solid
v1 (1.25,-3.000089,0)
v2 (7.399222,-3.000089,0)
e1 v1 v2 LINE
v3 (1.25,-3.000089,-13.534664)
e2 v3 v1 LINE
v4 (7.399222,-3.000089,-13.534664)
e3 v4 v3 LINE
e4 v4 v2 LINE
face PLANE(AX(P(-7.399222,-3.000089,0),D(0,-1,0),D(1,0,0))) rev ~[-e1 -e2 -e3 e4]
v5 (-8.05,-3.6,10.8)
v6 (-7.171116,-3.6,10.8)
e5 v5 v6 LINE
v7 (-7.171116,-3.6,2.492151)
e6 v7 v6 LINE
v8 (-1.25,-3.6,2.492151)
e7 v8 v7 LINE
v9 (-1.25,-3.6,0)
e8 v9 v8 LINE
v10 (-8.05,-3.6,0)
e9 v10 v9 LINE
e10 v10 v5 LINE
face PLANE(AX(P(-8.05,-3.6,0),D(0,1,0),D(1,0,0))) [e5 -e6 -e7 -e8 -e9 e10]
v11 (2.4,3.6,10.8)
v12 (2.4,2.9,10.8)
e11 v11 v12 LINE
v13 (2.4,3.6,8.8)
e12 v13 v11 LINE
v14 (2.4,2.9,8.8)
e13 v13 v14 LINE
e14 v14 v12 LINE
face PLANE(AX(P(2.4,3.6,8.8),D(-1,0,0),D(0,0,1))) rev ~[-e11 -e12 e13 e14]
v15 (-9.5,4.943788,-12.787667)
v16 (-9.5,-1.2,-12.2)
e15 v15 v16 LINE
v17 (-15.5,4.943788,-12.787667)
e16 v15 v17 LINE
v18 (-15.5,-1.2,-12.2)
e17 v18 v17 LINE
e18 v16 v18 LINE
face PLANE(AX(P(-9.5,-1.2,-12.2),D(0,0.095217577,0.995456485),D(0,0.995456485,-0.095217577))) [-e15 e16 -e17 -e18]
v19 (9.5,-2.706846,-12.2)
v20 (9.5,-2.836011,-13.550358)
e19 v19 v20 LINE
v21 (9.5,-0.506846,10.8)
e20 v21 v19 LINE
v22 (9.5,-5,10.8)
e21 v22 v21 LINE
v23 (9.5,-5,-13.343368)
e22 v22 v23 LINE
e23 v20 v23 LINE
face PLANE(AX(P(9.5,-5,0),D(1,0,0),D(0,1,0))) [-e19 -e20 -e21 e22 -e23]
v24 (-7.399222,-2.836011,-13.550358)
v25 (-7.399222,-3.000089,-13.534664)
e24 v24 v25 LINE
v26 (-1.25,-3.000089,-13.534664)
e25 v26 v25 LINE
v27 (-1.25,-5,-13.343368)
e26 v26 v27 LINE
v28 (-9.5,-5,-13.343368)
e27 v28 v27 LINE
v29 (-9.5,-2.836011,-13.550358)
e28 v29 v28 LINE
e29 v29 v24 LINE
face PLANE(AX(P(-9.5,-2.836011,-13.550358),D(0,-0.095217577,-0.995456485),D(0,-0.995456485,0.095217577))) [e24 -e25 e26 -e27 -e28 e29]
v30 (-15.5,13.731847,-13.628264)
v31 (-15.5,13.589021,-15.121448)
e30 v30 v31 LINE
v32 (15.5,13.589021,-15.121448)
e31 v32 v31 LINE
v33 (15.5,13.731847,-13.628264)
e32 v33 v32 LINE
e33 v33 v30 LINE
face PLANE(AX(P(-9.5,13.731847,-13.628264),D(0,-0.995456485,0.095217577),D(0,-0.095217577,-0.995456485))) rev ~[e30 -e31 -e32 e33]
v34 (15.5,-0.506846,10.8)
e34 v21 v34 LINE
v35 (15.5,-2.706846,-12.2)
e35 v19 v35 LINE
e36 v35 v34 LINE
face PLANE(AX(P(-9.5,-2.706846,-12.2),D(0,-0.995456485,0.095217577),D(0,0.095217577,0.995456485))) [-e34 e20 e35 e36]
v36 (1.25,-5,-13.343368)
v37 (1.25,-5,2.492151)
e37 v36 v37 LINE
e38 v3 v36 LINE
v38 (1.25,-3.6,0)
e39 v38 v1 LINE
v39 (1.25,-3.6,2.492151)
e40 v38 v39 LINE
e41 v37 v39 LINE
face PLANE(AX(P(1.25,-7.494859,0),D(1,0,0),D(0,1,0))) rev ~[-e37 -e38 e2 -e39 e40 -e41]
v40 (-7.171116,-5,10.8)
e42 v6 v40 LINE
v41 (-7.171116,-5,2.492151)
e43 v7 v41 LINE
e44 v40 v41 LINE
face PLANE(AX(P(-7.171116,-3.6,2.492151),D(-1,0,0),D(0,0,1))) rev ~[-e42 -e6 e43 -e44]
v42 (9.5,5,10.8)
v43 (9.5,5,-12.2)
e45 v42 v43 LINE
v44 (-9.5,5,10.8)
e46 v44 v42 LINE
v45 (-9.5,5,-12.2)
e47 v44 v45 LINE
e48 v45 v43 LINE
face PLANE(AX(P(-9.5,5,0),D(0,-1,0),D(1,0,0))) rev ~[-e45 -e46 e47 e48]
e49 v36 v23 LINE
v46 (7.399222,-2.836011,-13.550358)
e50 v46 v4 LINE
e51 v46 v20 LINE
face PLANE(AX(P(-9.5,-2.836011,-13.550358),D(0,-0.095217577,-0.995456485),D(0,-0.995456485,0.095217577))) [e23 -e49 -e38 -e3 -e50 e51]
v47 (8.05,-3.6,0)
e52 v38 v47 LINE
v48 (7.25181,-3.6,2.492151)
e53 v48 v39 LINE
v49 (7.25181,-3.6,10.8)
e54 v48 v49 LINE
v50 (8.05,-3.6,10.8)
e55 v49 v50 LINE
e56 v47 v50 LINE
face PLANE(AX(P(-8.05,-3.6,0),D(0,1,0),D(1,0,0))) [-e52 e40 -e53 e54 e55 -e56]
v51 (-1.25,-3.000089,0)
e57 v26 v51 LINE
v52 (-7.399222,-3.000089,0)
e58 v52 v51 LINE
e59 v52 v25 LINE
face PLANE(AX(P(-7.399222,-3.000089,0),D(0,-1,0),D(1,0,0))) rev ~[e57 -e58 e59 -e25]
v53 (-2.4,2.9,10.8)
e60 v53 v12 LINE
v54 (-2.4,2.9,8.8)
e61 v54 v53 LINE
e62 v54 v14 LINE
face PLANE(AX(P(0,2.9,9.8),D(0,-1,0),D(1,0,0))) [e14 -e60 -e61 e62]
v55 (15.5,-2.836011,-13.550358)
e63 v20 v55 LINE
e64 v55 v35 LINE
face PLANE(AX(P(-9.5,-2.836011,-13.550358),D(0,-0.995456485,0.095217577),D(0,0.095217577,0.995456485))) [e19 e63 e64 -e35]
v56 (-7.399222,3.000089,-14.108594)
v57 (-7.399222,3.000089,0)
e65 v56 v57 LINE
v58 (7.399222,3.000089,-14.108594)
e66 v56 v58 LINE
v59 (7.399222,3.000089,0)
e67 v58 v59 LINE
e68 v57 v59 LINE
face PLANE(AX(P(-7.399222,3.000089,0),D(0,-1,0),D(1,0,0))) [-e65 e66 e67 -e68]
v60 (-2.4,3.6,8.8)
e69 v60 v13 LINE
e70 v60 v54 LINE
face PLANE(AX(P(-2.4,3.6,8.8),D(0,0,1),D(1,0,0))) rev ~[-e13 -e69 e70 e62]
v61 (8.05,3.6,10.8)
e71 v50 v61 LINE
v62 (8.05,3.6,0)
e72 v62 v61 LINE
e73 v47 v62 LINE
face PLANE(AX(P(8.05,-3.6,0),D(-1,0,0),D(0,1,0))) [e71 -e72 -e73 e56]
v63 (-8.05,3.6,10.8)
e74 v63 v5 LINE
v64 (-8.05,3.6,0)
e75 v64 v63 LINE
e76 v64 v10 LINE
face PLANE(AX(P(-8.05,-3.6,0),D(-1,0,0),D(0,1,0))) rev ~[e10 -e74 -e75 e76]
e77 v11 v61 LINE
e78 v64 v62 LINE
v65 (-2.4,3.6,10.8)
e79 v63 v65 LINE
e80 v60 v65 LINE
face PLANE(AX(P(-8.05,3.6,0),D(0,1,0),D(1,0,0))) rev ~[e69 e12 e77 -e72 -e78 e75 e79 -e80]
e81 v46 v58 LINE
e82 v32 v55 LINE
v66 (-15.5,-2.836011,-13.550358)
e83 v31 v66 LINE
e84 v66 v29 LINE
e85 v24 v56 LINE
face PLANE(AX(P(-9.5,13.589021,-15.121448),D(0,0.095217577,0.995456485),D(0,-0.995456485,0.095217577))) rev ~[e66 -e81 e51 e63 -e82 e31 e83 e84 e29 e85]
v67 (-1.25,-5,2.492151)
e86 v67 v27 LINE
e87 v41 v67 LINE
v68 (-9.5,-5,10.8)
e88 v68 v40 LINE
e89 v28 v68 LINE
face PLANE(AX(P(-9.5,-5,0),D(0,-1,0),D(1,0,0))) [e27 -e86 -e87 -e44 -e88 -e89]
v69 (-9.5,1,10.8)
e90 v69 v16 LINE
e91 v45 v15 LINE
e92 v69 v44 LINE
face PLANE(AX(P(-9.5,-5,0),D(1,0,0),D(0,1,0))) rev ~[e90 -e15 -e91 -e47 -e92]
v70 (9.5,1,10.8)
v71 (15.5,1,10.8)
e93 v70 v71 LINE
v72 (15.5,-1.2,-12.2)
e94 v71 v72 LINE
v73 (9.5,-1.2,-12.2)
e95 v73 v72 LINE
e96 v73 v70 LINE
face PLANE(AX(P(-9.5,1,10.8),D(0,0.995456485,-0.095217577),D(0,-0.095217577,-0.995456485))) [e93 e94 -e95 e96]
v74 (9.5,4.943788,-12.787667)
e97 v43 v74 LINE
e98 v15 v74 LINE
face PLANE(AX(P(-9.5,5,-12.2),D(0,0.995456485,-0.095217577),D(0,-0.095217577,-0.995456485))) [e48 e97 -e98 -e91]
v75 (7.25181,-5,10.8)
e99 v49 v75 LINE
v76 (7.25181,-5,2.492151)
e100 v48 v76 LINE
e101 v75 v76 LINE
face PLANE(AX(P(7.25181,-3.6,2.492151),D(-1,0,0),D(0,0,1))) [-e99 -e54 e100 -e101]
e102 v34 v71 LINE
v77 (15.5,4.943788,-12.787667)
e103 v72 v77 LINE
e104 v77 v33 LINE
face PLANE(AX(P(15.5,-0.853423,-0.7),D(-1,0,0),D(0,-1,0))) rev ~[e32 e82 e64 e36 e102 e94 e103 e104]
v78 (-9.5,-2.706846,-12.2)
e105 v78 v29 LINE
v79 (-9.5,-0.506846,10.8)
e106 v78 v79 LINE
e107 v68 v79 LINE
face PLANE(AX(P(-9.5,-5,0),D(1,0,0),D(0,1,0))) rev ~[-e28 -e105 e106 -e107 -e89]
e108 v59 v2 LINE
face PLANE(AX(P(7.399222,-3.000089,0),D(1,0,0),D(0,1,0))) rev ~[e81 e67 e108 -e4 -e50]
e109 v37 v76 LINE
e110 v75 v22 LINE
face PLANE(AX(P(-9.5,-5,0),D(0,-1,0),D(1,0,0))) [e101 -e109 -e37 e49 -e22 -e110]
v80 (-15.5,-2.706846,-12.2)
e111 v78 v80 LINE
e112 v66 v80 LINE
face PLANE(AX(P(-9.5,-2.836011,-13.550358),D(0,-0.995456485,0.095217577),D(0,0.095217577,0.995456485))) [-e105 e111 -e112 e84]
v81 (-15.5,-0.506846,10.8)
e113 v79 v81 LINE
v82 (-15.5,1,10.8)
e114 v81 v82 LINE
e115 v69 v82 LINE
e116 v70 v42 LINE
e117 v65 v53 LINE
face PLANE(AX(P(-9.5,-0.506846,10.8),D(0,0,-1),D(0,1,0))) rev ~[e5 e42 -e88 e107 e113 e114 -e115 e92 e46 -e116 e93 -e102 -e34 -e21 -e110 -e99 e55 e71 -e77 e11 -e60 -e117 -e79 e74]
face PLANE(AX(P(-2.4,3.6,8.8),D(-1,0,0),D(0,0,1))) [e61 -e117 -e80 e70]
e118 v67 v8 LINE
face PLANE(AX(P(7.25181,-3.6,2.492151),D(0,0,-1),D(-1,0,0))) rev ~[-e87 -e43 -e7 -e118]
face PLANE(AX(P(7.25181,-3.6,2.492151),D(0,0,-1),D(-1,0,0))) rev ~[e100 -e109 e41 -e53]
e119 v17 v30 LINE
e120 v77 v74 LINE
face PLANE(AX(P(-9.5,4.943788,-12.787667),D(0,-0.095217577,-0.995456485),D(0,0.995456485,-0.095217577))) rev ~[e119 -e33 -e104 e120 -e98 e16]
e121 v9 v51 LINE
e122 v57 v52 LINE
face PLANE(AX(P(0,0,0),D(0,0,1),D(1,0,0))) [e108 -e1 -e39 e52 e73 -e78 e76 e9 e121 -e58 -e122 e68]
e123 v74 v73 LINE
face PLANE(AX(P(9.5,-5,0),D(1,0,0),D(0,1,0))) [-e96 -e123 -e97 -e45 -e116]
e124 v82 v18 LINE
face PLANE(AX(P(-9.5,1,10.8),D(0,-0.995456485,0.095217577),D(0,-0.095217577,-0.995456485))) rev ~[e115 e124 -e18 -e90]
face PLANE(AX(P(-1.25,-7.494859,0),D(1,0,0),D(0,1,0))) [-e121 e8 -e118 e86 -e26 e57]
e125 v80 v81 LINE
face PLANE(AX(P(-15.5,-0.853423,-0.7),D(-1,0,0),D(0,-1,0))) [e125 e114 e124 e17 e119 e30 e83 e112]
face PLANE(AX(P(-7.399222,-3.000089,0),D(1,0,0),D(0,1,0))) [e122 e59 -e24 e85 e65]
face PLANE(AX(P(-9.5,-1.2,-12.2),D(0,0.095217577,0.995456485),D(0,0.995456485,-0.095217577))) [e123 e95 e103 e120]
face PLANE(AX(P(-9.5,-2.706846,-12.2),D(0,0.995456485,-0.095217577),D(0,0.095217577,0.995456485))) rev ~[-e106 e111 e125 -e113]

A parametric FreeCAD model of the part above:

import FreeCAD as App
import Part
import Sketcher

doc = App.newDocument("Part")
body = doc.addObject("PartDesign::Body", "Body")

sketch1 = body.newObject("Sketcher::SketchObject", "Sketch")
sketch1.AttachmentSupport = (doc.getObject("XY_Plane"), [""])
sketch1.MapMode = "FlatFace"
sketch1.addGeometry([
    Part.LineSegment(App.Vector(-10, 5, 0), App.Vector(-10, -5, 0)),
    Part.LineSegment(App.Vector(-10, -5, 0), App.Vector(10, -5, 0)),
    Part.LineSegment(App.Vector(10, -5, 0), App.Vector(10, 5, 0)),
    Part.LineSegment(App.Vector(10, 5, 0), App.Vector(-10, 5, 0)),
    Part.LineSegment(App.Vector(8, -4, 0), App.Vector(-8, -4, 0)),
    Part.LineSegment(App.Vector(-8, -4, 0), App.Vector(-8, 4, 0)),
    Part.LineSegment(App.Vector(-8, 4, 0), App.Vector(8, 4, 0)),
    Part.LineSegment(App.Vector(8, 4, 0), App.Vector(8, -4, 0)),
], False)
sketch1.addConstraint([
    Sketcher.Constraint("Coincident", 0, 2, 1, 1),
    Sketcher.Constraint("Coincident", 1, 2, 2, 1),
    Sketcher.Constraint("Coincident", 2, 2, 3, 1),
    Sketcher.Constraint("Coincident", 3, 2, 0, 1),
    Sketcher.Constraint("Coincident", 4, 2, 5, 1),
    Sketcher.Constraint("Coincident", 5, 2, 6, 1),
    Sketcher.Constraint("Coincident", 6, 2, 7, 1),
    Sketcher.Constraint("Coincident", 7, 2, 4, 1),
    Sketcher.Constraint("Vertical", 0),
    Sketcher.Constraint("Horizontal", 1),
    Sketcher.Constraint("Vertical", 2),
    Sketcher.Constraint("Horizontal", 3),
    Sketcher.Constraint("Horizontal", 4),
    Sketcher.Constraint("Vertical", 5),
    Sketcher.Constraint("Horizontal", 6),
    Sketcher.Constraint("Vertical", 7),
    Sketcher.Constraint("Symmetric", 0, 2, 2, 2, -1, 1),
    Sketcher.Constraint("Symmetric", 4, 2, 6, 2, -1, 1),
    Sketcher.Constraint("DistanceX", 1, 1, 1, 2, 19.0),
    Sketcher.Constraint("DistanceY", 0, 2, 0, 1, 10.0),
    Sketcher.Constraint("DistanceX", 4, 2, 4, 1, 16.1),
    Sketcher.Constraint("DistanceY", 5, 1, 5, 2, 7.2),
])
pad1 = body.newObject("PartDesign::Pad", "Pad")
pad1.Profile = sketch1
pad1.Length = 10.8

sketch2 = body.newObject("Sketcher::SketchObject", "Sketch001")
sketch2.AttachmentSupport = (doc.getObject("XY_Plane"), [""])
sketch2.MapMode = "FlatFace"
sketch2.addGeometry([
    Part.LineSegment(App.Vector(-10, 5, 0), App.Vector(-10, -5, 0)),
    Part.LineSegment(App.Vector(-10, -5, 0), App.Vector(10, -5, 0)),
    Part.LineSegment(App.Vector(10, -5, 0), App.Vector(10, 5, 0)),
    Part.LineSegment(App.Vector(10, 5, 0), App.Vector(-10, 5, 0)),
    Part.LineSegment(App.Vector(7, -3, 0), App.Vector(-7, -3, 0)),
    Part.LineSegment(App.Vector(-7, -3, 0), App.Vector(-7, 3, 0)),
    Part.LineSegment(App.Vector(-7, 3, 0), App.Vector(7, 3, 0)),
    Part.LineSegment(App.Vector(7, 3, 0), App.Vector(7, -3, 0)),
], False)
sketch2.addConstraint([
    Sketcher.Constraint("Coincident", 0, 2, 1, 1),
    Sketcher.Constraint("Coincident", 1, 2, 2, 1),
    Sketcher.Constraint("Coincident", 2, 2, 3, 1),
    Sketcher.Constraint("Coincident", 3, 2, 0, 1),
    Sketcher.Constraint("Coincident", 4, 2, 5, 1),
    Sketcher.Constraint("Coincident", 5, 2, 6, 1),
    Sketcher.Constraint("Coincident", 6, 2, 7, 1),
    Sketcher.Constraint("Coincident", 7, 2, 4, 1),
    Sketcher.Constraint("Vertical", 0),
    Sketcher.Constraint("Horizontal", 1),
    Sketcher.Constraint("Vertical", 2),
    Sketcher.Constraint("Horizontal", 3),
    Sketcher.Constraint("Horizontal", 4),
    Sketcher.Constraint("Vertical", 5),
    Sketcher.Constraint("Horizontal", 6),
    Sketcher.Constraint("Vertical", 7),
    Sketcher.Constraint("Symmetric", 0, 2, 2, 2, -1, 1),
    Sketcher.Constraint("Symmetric", 4, 2, 6, 2, -1, 1),
    Sketcher.Constraint("DistanceX", 1, 1, 1, 2, 19.0),
    Sketcher.Constraint("DistanceY", 0, 2, 0, 1, 10.0),
    Sketcher.Constraint("DistanceX", 4, 2, 4, 1, 14.798444),
    Sketcher.Constraint("DistanceY", 5, 1, 5, 2, 6.000178),
])
pad2 = body.newObject("PartDesign::Pad", "Pad001")
pad2.Profile = sketch2
pad2.Length = 12.2
pad2.Reversed = True

sketch3 = body.newObject("Sketcher::SketchObject", "Sketch002")
sketch3.AttachmentSupport = (doc.getObject("YZ_Plane"), [""])
sketch3.MapMode = "FlatFace"
sketch3.AttachmentOffset = App.Placement(App.Vector(0, 0, -9.5), App.Rotation())
sketch3.addGeometry([
    Part.LineSegment(App.Vector(1, 10.8, 0), App.Vector(-1.2, -12.2, 0)),
    Part.LineSegment(App.Vector(-1.2, -12.2, 0), App.Vector(4.9, -12.8, 0)),
    Part.LineSegment(App.Vector(4.9, -12.8, 0), App.Vector(13.7, -13.6, 0)),
    Part.LineSegment(App.Vector(13.7, -13.6, 0), App.Vector(13.6, -15.1, 0)),
    Part.LineSegment(App.Vector(13.6, -15.1, 0), App.Vector(-2.8, -13.6, 0)),
    Part.LineSegment(App.Vector(-2.8, -13.6, 0), App.Vector(-2.7, -12.2, 0)),
    Part.LineSegment(App.Vector(-2.7, -12.2, 0), App.Vector(-0.5, 10.8, 0)),
    Part.LineSegment(App.Vector(-0.5, 10.8, 0), App.Vector(1, 10.8, 0)),
], False)
sketch3.addConstraint([
    Sketcher.Constraint("Coincident", 0, 2, 1, 1),
    Sketcher.Constraint("Coincident", 1, 2, 2, 1),
    Sketcher.Constraint("Coincident", 2, 2, 3, 1),
    Sketcher.Constraint("Coincident", 3, 2, 4, 1),
    Sketcher.Constraint("Coincident", 4, 2, 5, 1),
    Sketcher.Constraint("Coincident", 5, 2, 6, 1),
    Sketcher.Constraint("Coincident", 6, 2, 7, 1),
    Sketcher.Constraint("Coincident", 7, 2, 0, 1),
    Sketcher.Constraint("Horizontal", 7),
    Sketcher.Constraint("Perpendicular", 0, 1),
    Sketcher.Constraint("Parallel", 1, 2),
    Sketcher.Constraint("Perpendicular", 2, 3),
    Sketcher.Constraint("Perpendicular", 3, 4),
    Sketcher.Constraint("Perpendicular", 4, 5),
    Sketcher.Constraint("Parallel", 5, 6),
    Sketcher.Constraint("Horizontal", 0, 2, 5, 2),
    Sketcher.Constraint("DistanceX", -1, 1, 7, 2, 1.0),
    Sketcher.Constraint("DistanceY", 0, 2, 6, 2, 23.0),
    Sketcher.Constraint("Distance", 3, 1.5),
    Sketcher.Constraint("Distance", 4, 16.5),
    Sketcher.Constraint("DistanceX", 0, 2, -1, 1, 1.2),
    Sketcher.Constraint("DistanceY", 0, 2, -1, 1, 12.2),
    Sketcher.Constraint("DistanceX", 4, 2, 1, 2, 7.779799),
    Sketcher.Constraint("Distance", 1, 6.17183),
])
pad3 = body.newObject("PartDesign::Pad", "Pad002")
pad3.Profile = sketch3
pad3.Type = "TwoLengths"
pad3.Length = 6
pad3.Length2 = 25
pad3.Reversed = True

sketch4 = body.newObject("Sketcher::SketchObject", "Sketch003")
sketch4.AttachmentSupport = (doc.getObject("YZ_Plane"), [""])
sketch4.MapMode = "FlatFace"
sketch4.AttachmentOffset = App.Placement(App.Vector(0, 0, -9.5), App.Rotation())
sketch4.addGeometry([
    Part.LineSegment(App.Vector(4.9, -12.8, 0), App.Vector(-1.2, -12.2, 0)),
    Part.LineSegment(App.Vector(-1.2, -12.2, 0), App.Vector(5, -12.2, 0)),
    Part.LineSegment(App.Vector(5, -12.2, 0), App.Vector(4.9, -12.8, 0)),
    Part.LineSegment(App.Vector(-5, -12.2, 0), App.Vector(-2.7, -12.2, 0)),
    Part.LineSegment(App.Vector(-2.7, -12.2, 0), App.Vector(-2.8, -13.6, 0)),
    Part.LineSegment(App.Vector(-2.8, -13.6, 0), App.Vector(-5, -13.3, 0)),
    Part.LineSegment(App.Vector(-5, -13.3, 0), App.Vector(-5, -12.2, 0)),
], False)
sketch4.addConstraint([
    Sketcher.Constraint("Coincident", 0, 2, 1, 1),
    Sketcher.Constraint("Coincident", 1, 2, 2, 1),
    Sketcher.Constraint("Coincident", 2, 2, 0, 1),
    Sketcher.Constraint("Coincident", 3, 2, 4, 1),
    Sketcher.Constraint("Coincident", 4, 2, 5, 1),
    Sketcher.Constraint("Coincident", 5, 2, 6, 1),
    Sketcher.Constraint("Coincident", 6, 2, 3, 1),
    Sketcher.Constraint("Horizontal", 1),
    Sketcher.Constraint("Horizontal", 3),
    Sketcher.Constraint("Vertical", 6),
    Sketcher.Constraint("Symmetric", 1, 2, 6, 2, -2),
    Sketcher.Constraint("Perpendicular", 0, 2),
    Sketcher.Constraint("Parallel", 2, 4),
    Sketcher.Constraint("Perpendicular", 4, 5),
    Sketcher.Constraint("DistanceX", 1, 1, 1, 2, 6.2),
    Sketcher.Constraint("DistanceX", -1, 1, 1, 2, 5.0),
    Sketcher.Constraint("DistanceY", 0, 2, -1, 1, 12.2),
    Sketcher.Constraint("DistanceY", 6, 1, 6, 2, 1.143368),
    Sketcher.Constraint("DistanceX", 4, 2, 2, 2, 7.779799),
    Sketcher.Constraint("DistanceY", 5, 2, 2, 2, 0.555701),
])
pad4 = body.newObject("PartDesign::Pad", "Pad003")
pad4.Profile = sketch4
pad4.Length = 19

sketch5 = body.newObject("Sketcher::SketchObject", "Sketch004")
sketch5.AttachmentSupport = (doc.getObject("XY_Plane"), [""])
sketch5.MapMode = "FlatFace"
sketch5.addGeometry([
    Part.LineSegment(App.Vector(-7, 3, 0), App.Vector(-7, -3, 0)),
    Part.LineSegment(App.Vector(-7, -3, 0), App.Vector(7, -3, 0)),
    Part.LineSegment(App.Vector(7, -3, 0), App.Vector(7, 3, 0)),
    Part.LineSegment(App.Vector(7, 3, 0), App.Vector(-7, 3, 0)),
], False)
sketch5.addConstraint([
    Sketcher.Constraint("Coincident", 0, 2, 1, 1),
    Sketcher.Constraint("Coincident", 1, 2, 2, 1),
    Sketcher.Constraint("Coincident", 2, 2, 3, 1),
    Sketcher.Constraint("Coincident", 3, 2, 0, 1),
    Sketcher.Constraint("Vertical", 0),
    Sketcher.Constraint("Horizontal", 1),
    Sketcher.Constraint("Vertical", 2),
    Sketcher.Constraint("Horizontal", 3),
    Sketcher.Constraint("Symmetric", 0, 2, 2, 2, -1, 1),
    Sketcher.Constraint("DistanceX", 1, 1, 1, 2, 14.798444),
    Sketcher.Constraint("DistanceY", 0, 2, 0, 1, 6.000178),
])
pocket1 = body.newObject("PartDesign::Pocket", "Pocket")
pocket1.Profile = sketch5
pocket1.Type = "ThroughAll"

sketch6 = body.newObject("Sketcher::SketchObject", "Sketch005")
sketch6.AttachmentSupport = (doc.getObject("XY_Plane"), [""])
sketch6.MapMode = "FlatFace"
sketch6.addGeometry([
    Part.LineSegment(App.Vector(-8, 4, 0), App.Vector(-8, -4, 0)),
    Part.LineSegment(App.Vector(-8, -4, 0), App.Vector(8, -4, 0)),
    Part.LineSegment(App.Vector(8, -4, 0), App.Vector(8, 4, 0)),
    Part.LineSegment(App.Vector(8, 4, 0), App.Vector(-8, 4, 0)),
], False)
sketch6.addConstraint([
    Sketcher.Constraint("Coincident", 0, 2, 1, 1),
    Sketcher.Constraint("Coincident", 1, 2, 2, 1),
    Sketcher.Constraint("Coincident", 2, 2, 3, 1),
    Sketcher.Constraint("Coincident", 3, 2, 0, 1),
    Sketcher.Constraint("Vertical", 0),
    Sketcher.Constraint("Horizontal", 1),
    Sketcher.Constraint("Vertical", 2),
    Sketcher.Constraint("Horizontal", 3),
    Sketcher.Constraint("Symmetric", 0, 2, 2, 2, -1, 1),
    Sketcher.Constraint("DistanceX", 1, 1, 1, 2, 16.1),
    Sketcher.Constraint("DistanceY", 0, 2, 0, 1, 7.2),
])
pocket2 = body.newObject("PartDesign::Pocket", "Pocket001")
pocket2.Profile = sketch6
pocket2.Length = 25
pocket2.Reversed = True

sketch7 = body.newObject("Sketcher::SketchObject", "Sketch006")
sketch7.AttachmentSupport = (doc.getObject("XZ_Plane"), [""])
sketch7.MapMode = "FlatFace"
sketch7.AttachmentOffset = App.Placement(App.Vector(0, 0, 3.6), App.Rotation())
sketch7.addGeometry([
    Part.LineSegment(App.Vector(7, 11, 0), App.Vector(7, 2, 0)),
    Part.LineSegment(App.Vector(7, 2, 0), App.Vector(-7, 2, 0)),
    Part.LineSegment(App.Vector(-7, 2, 0), App.Vector(-7, 11, 0)),
    Part.LineSegment(App.Vector(-7, 11, 0), App.Vector(7, 11, 0)),
], False)
sketch7.addConstraint([
    Sketcher.Constraint("Coincident", 0, 2, 1, 1),
    Sketcher.Constraint("Coincident", 1, 2, 2, 1),
    Sketcher.Constraint("Coincident", 2, 2, 3, 1),
    Sketcher.Constraint("Coincident", 3, 2, 0, 1),
    Sketcher.Constraint("Vertical", 0),
    Sketcher.Constraint("Horizontal", 1),
    Sketcher.Constraint("Vertical", 2),
    Sketcher.Constraint("Horizontal", 3),
    Sketcher.Constraint("DistanceY", -1, 1, 2, 2, 10.8),
    Sketcher.Constraint("DistanceY", 0, 2, 0, 1, 8.307849),
    Sketcher.Constraint("DistanceX", 1, 2, 1, 1, 14.422927),
    Sketcher.Constraint("DistanceX", -1, 1, 0, 2, 7.25181),
])
pocket3 = body.newObject("PartDesign::Pocket", "Pocket002")
pocket3.Profile = sketch7
pocket3.Length = 25
pocket3.Reversed = True

sketch8 = body.newObject("Sketcher::SketchObject", "Sketch007")
sketch8.AttachmentSupport = (doc.getObject("XZ_Plane"), [""])
sketch8.MapMode = "FlatFace"
sketch8.AttachmentOffset = App.Placement(App.Vector(0, 0, -3.6), App.Rotation())
sketch8.addGeometry([
    Part.LineSegment(App.Vector(-2.4, 10.8, 0), App.Vector(-2.4, 8.8, 0)),
    Part.LineSegment(App.Vector(-2.4, 8.8, 0), App.Vector(2.4, 8.8, 0)),
    Part.LineSegment(App.Vector(2.4, 8.8, 0), App.Vector(2.4, 10.8, 0)),
    Part.LineSegment(App.Vector(2.4, 10.8, 0), App.Vector(-2.4, 10.8, 0)),
], False)
sketch8.addConstraint([
    Sketcher.Constraint("Coincident", 0, 2, 1, 1),
    Sketcher.Constraint("Coincident", 1, 2, 2, 1),
    Sketcher.Constraint("Coincident", 2, 2, 3, 1),
    Sketcher.Constraint("Coincident", 3, 2, 0, 1),
    Sketcher.Constraint("Vertical", 0),
    Sketcher.Constraint("Horizontal", 1),
    Sketcher.Constraint("Vertical", 2),
    Sketcher.Constraint("Horizontal", 3),
    Sketcher.Constraint("DistanceY", 0, 2, 0, 1, 2.0),
    Sketcher.Constraint("DistanceX", 1, 1, 1, 2, 4.8),
    Sketcher.Constraint("DistanceX", 0, 2, -1, 1, 2.4),
    Sketcher.Constraint("DistanceY", -1, 1, 0, 2, 8.8),
])
pad5 = body.newObject("PartDesign::Pad", "Pad004")
pad5.Profile = sketch8
pad5.Length = 0.7

sketch9 = body.newObject("Sketcher::SketchObject", "Sketch008")
sketch9.AttachmentSupport = (doc.getObject("XY_Plane"), [""])
sketch9.MapMode = "FlatFace"
sketch9.addGeometry([
    Part.LineSegment(App.Vector(-1.2, -2.5, 0), App.Vector(-1.2, -7.5, 0)),
    Part.LineSegment(App.Vector(-1.2, -7.5, 0), App.Vector(1.2, -7.5, 0)),
    Part.LineSegment(App.Vector(1.2, -7.5, 0), App.Vector(1.2, -2.5, 0)),
    Part.LineSegment(App.Vector(1.2, -2.5, 0), App.Vector(-1.2, -2.5, 0)),
], False)
sketch9.addConstraint([
    Sketcher.Constraint("Coincident", 0, 2, 1, 1),
    Sketcher.Constraint("Coincident", 1, 2, 2, 1),
    Sketcher.Constraint("Coincident", 2, 2, 3, 1),
    Sketcher.Constraint("Coincident", 3, 2, 0, 1),
    Sketcher.Constraint("Vertical", 0),
    Sketcher.Constraint("Horizontal", 1),
    Sketcher.Constraint("Vertical", 2),
    Sketcher.Constraint("Horizontal", 3),
    Sketcher.Constraint("DistanceY", 0, 2, 0, 1, 5.0),
    Sketcher.Constraint("DistanceX", 1, 1, 1, 2, 2.5),
    Sketcher.Constraint("DistanceX", 0, 2, -1, 1, 1.25),
    Sketcher.Constraint("DistanceY", 0, 2, -1, 1, 7.494859),
])
pocket4 = body.newObject("PartDesign::Pocket", "Pocket003")
pocket4.Profile = sketch9
pocket4.Type = "ThroughAll"
pocket4.Midplane = True

doc.recompute()
